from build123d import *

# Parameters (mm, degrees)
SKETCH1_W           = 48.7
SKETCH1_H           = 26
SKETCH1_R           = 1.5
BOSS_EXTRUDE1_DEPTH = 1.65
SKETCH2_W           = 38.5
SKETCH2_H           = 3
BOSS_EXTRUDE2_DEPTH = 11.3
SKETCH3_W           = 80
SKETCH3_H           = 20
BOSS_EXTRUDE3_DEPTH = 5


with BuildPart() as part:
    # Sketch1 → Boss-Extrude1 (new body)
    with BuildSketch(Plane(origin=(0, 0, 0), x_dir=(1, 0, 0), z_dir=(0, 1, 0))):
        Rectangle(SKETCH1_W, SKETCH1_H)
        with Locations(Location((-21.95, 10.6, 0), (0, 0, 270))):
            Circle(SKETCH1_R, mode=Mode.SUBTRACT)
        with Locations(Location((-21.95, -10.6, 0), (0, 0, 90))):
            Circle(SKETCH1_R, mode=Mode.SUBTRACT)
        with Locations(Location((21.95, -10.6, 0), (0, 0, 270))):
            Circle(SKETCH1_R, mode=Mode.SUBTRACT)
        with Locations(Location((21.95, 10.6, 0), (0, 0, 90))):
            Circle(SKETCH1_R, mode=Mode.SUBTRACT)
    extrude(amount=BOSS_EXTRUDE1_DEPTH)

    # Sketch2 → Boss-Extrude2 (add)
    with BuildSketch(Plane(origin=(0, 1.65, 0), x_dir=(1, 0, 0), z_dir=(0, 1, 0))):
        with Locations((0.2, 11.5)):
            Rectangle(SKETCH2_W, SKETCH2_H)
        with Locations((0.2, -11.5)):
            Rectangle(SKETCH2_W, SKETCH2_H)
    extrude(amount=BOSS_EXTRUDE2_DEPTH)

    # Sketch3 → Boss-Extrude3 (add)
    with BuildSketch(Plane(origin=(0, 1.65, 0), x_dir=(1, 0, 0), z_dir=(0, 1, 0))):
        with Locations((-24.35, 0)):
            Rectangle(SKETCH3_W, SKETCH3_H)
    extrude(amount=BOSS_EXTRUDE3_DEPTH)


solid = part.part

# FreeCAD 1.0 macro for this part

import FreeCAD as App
import Part
import Sketcher


def add_polygon(sketch, points):
    """Adds a closed chain of lines whose ends are joined by coincident constraints."""
    first, n = sketch.GeometryCount, len(points)
    for a, b in zip(points, points[1:] + points[:1]):
        sketch.addGeometry(Part.LineSegment(App.Vector(*a, 0), App.Vector(*b, 0)), False)
    for i in range(n):
        sketch.addConstraint(Sketcher.Constraint("Coincident", first + i, 2, first + (i + 1) % n, 1))

doc = App.newDocument("Part")
params = doc.addObject("Spreadsheet::Sheet", "Params")
for row, (alias, value) in enumerate([
    ("sketch1_diameter", "3 mm"),
    ("sketch1_height", "26 mm"),
    ("sketch1_width", "48.7 mm"),
    ("pad1_length", "1.65 mm"),
    ("sketch2_height", "3 mm"),
    ("sketch2_width", "38.5 mm"),
    ("pad2_length", "11.3 mm"),
    ("sketch3_width", "80 mm"),
    ("sketch3_height", "20 mm"),
    ("pad3_length", "5 mm"),
], start=1):
    params.set(f"A{row}", alias)
    params.set(f"B{row}", "=" + value)
    params.setAlias(f"B{row}", alias)

body = doc.addObject("PartDesign::Body", "Body")

# Sketch on XZ plane
sketch1 = doc.addObject("Sketcher::SketchObject", "Sketch")
body.addObject(sketch1)
sketch1.AttachmentSupport = (doc.XZ_Plane, [""])
sketch1.MapMode = "FlatFace"
add_polygon(sketch1, [(-24.35, -13), (-24.35, 13), (24.35, 13), (24.35, -13)])  # lines 0-3
sketch1.addGeometry(Part.Circle(App.Vector(-21.95, 10.6, 0), App.Vector(0, 0, 1), 1.5), False)  # 4
sketch1.addGeometry(Part.Circle(App.Vector(21.95, 10.6, 0), App.Vector(0, 0, 1), 1.5), False)  # 5
sketch1.addGeometry(Part.Circle(App.Vector(-21.95, -10.6, 0), App.Vector(0, 0, 1), 1.5), False)  # 6
sketch1.addGeometry(Part.Circle(App.Vector(21.95, -10.6, 0), App.Vector(0, 0, 1), 1.5), False)  # 7
sketch1.addConstraint([
    Sketcher.Constraint("Vertical", 0),
    Sketcher.Constraint("Horizontal", 1),
    Sketcher.Constraint("Vertical", 2),
    Sketcher.Constraint("Horizontal", 3),
    Sketcher.Constraint("Equal", 4, 5),
    Sketcher.Constraint("Equal", 5, 6),
    Sketcher.Constraint("Equal", 6, 7),
    Sketcher.Constraint("Symmetric", 5, 3, 6, 3, -1, 1),
    Sketcher.Constraint("Symmetric", 4, 3, 7, 3, -1, 1),
    Sketcher.Constraint("Symmetric", 0, 2, 2, 2, -1, 1),
    Sketcher.Constraint("Symmetric", 4, 3, 5, 3, -2),
    Sketcher.Constraint("Diameter", 4, 3.0),
    Sketcher.Constraint("DistanceY", 0, 1, 0, 2, 26.0),
    Sketcher.Constraint("DistanceX", 1, 1, 1, 2, 48.7),
    Sketcher.Constraint("DistanceY", -1, 1, 4, 3, 10.6),
    Sketcher.Constraint("DistanceX", 4, 3, 5, 3, 43.9),
])
sketch1.setExpression("Constraints[15]", "Params.sketch1_diameter")
sketch1.setExpression("Constraints[16]", "Params.sketch1_height")
sketch1.setExpression("Constraints[17]", "Params.sketch1_width")
pad1 = doc.addObject("PartDesign::Pad", "Pad")
body.addObject(pad1)
pad1.Profile = sketch1
pad1.setExpression("Length", "Params.pad1_length")
pad1.Reversed = True

# Sketch on XZ plane
sketch2 = doc.addObject("Sketcher::SketchObject", "Sketch001")
body.addObject(sketch2)
sketch2.AttachmentSupport = (doc.XZ_Plane, [""])
sketch2.MapMode = "FlatFace"
sketch2.AttachmentOffset = App.Placement(App.Vector(0, 0, -1.65), App.Rotation())
add_polygon(sketch2, [(-19.05, -13), (-19.05, -10), (19.45, -10), (19.45, -13)])  # lines 0-3
add_polygon(sketch2, [(-19.05, 10), (-19.05, 13), (19.45, 13), (19.45, 10)])  # lines 4-7
sketch2.addConstraint([
    Sketcher.Constraint("Vertical", 0),
    Sketcher.Constraint("Horizontal", 1),
    Sketcher.Constraint("Vertical", 2),
    Sketcher.Constraint("Horizontal", 3),
    Sketcher.Constraint("Vertical", 4),
    Sketcher.Constraint("Horizontal", 5),
    Sketcher.Constraint("Vertical", 6),
    Sketcher.Constraint("Horizontal", 7),
    Sketcher.Constraint("Symmetric", 3, 2, 4, 2, -1),
    Sketcher.Constraint("Symmetric", 1, 2, 6, 2, -1),
    Sketcher.Constraint("DistanceY", 0, 1, 0, 2, 3.0),
    Sketcher.Constraint("DistanceX", 1, 1, 1, 2, 38.5),
    Sketcher.Constraint("DistanceY", 0, 2, -1, 1, 10.0),
    Sketcher.Constraint("DistanceX", 0, 2, -1, 1, 19.05),
])
sketch2.setExpression("Constraints[18]", "Params.sketch2_height")
sketch2.setExpression("Constraints[19]", "Params.sketch2_width")
pad2 = doc.addObject("PartDesign::Pad", "Pad001")
body.addObject(pad2)
pad2.Profile = sketch2
pad2.setExpression("Length", "Params.pad2_length")
pad2.Reversed = True

# Sketch on XZ plane
sketch3 = doc.addObject("Sketcher::SketchObject", "Sketch002")
body.addObject(sketch3)
sketch3.AttachmentSupport = (doc.XZ_Plane, [""])
sketch3.MapMode = "FlatFace"
sketch3.AttachmentOffset = App.Placement(App.Vector(0, 0, -1.65), App.Rotation())
add_polygon(sketch3, [(-64.35, -10), (-64.35, 10), (15.65, 10), (15.65, -10)])  # lines 0-3
sketch3.addConstraint([
    Sketcher.Constraint("Vertical", 0),
    Sketcher.Constraint("Horizontal", 1),
    Sketcher.Constraint("Vertical", 2),
    Sketcher.Constraint("Horizontal", 3),
    Sketcher.Constraint("DistanceX", 1, 1, 1, 2, 80.0),
    Sketcher.Constraint("DistanceY", 0, 1, 0, 2, 20.0),
    Sketcher.Constraint("DistanceY", -1, 1, 0, 2, 10.0),
    Sketcher.Constraint("DistanceX", 0, 2, -1, 1, 64.35),
])
sketch3.setExpression("Constraints[8]", "Params.sketch3_width")
sketch3.setExpression("Constraints[9]", "Params.sketch3_height")
pad3 = doc.addObject("PartDesign::Pad", "Pad002")
body.addObject(pad3)
pad3.Profile = sketch3
pad3.setExpression("Length", "Params.pad3_length")
pad3.Reversed = True

doc.recompute()
